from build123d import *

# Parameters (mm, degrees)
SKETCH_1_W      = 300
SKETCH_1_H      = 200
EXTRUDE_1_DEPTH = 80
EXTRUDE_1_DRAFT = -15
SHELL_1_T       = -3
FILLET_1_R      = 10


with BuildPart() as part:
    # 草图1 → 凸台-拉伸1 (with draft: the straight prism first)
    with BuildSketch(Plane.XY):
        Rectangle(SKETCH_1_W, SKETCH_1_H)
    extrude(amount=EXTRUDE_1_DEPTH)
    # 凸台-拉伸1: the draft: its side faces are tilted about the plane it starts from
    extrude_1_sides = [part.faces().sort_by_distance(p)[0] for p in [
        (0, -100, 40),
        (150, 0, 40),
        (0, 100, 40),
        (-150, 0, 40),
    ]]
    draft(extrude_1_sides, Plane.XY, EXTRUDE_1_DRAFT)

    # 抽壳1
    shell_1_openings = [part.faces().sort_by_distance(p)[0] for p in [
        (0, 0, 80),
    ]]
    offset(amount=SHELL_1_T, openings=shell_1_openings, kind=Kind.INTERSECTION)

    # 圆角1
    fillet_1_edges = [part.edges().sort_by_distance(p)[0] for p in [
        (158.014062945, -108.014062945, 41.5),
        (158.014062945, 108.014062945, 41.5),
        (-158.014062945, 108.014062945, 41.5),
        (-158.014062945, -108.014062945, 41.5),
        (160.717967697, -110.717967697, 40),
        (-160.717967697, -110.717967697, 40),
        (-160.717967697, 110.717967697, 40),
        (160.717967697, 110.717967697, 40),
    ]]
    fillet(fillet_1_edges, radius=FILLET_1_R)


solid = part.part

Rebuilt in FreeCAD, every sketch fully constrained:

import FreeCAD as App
import Part
import Sketcher


def edges_at(feature, points):
    """Names of the edges that pass closest to the given points."""
    edges = feature.Shape.Edges
    near = lambda p: min(range(len(edges)), key=lambda i: edges[i].distToShape(Part.Vertex(*p))[0])
    return sorted({f"Edge{near(p) + 1}" for p in points})


def faces_at(feature, points):
    """Names of the faces that lie closest to the given points."""
    faces = feature.Shape.Faces
    near = lambda p: min(range(len(faces)), key=lambda i: faces[i].distToShape(Part.Vertex(*p))[0])
    return sorted({f"Face{near(p) + 1}" for p in points})


def add_polygon(sketch, points):
    """Adds a closed chain of lines whose ends are joined by coincident constraints."""
    first, n = sketch.GeometryCount, len(points)
    for a, b in zip(points, points[1:] + points[:1]):
        sketch.addGeometry(Part.LineSegment(App.Vector(*a, 0), App.Vector(*b, 0)), False)
    for i in range(n):
        sketch.addConstraint(Sketcher.Constraint("Coincident", first + i, 2, first + (i + 1) % n, 1))

doc = App.newDocument("Part")
body = doc.addObject("PartDesign::Body", "Body")

sketch1 = doc.addObject("Sketcher::SketchObject", "Sketch")
body.addObject(sketch1)
sketch1.AttachmentSupport = (doc.XY_Plane, [""])
sketch1.MapMode = "FlatFace"
add_polygon(sketch1, [(-150, 100), (-150, -100), (150, -100), (150, 100)])
sketch1.addConstraint(Sketcher.Constraint("Vertical", 0))
sketch1.addConstraint(Sketcher.Constraint("Horizontal", 1))
sketch1.addConstraint(Sketcher.Constraint("Vertical", 2))
sketch1.addConstraint(Sketcher.Constraint("Horizontal", 3))
sketch1.addConstraint(Sketcher.Constraint("Symmetric", 0, 2, 2, 2, -1, 1))
sketch1.addConstraint(Sketcher.Constraint("DistanceX", 1, 1, 1, 2, 300.0))
sketch1.addConstraint(Sketcher.Constraint("DistanceY", 0, 2, 0, 1, 200.0))
pad1 = doc.addObject("PartDesign::Pad", "Pad")
body.addObject(pad1)
pad1.Profile = sketch1
pad1.Length = 80
doc.recompute()

draft = doc.addObject("PartDesign::Draft", "Draft")
body.addObject(draft)
draft.Base = (pad1, faces_at(pad1, [
    (0, -100, 40),
    (150, 0, 40),
    (0, 100, 40),
    (-150, 0, 40),
]))
draft.NeutralPlane = (doc.XY_Plane, [""])
draft.Angle = 15
draft.Reversed = True
doc.recompute()

thickness = doc.addObject("PartDesign::Thickness", "Thickness")
body.addObject(thickness)
thickness.Base = (draft, faces_at(draft, [(0, 0, 80)]))
thickness.Value = 3
thickness.Reversed = True
thickness.Join = "Intersection"
doc.recompute()

fillet = doc.addObject("PartDesign::Fillet", "Fillet")
body.addObject(fillet)
fillet.Base = (thickness, edges_at(thickness, [
    (158.014, -108.014, 41.5),
    (158.014, 108.014, 41.5),
    (-158.014, 108.014, 41.5),
    (-158.014, -108.014, 41.5),
    (160.718, -110.718, 40),
    (-160.718, -110.718, 40),
    (-160.718, 110.718, 40),
    (160.718, 110.718, 40),
]))
fillet.Radius = 10

doc.recompute()
